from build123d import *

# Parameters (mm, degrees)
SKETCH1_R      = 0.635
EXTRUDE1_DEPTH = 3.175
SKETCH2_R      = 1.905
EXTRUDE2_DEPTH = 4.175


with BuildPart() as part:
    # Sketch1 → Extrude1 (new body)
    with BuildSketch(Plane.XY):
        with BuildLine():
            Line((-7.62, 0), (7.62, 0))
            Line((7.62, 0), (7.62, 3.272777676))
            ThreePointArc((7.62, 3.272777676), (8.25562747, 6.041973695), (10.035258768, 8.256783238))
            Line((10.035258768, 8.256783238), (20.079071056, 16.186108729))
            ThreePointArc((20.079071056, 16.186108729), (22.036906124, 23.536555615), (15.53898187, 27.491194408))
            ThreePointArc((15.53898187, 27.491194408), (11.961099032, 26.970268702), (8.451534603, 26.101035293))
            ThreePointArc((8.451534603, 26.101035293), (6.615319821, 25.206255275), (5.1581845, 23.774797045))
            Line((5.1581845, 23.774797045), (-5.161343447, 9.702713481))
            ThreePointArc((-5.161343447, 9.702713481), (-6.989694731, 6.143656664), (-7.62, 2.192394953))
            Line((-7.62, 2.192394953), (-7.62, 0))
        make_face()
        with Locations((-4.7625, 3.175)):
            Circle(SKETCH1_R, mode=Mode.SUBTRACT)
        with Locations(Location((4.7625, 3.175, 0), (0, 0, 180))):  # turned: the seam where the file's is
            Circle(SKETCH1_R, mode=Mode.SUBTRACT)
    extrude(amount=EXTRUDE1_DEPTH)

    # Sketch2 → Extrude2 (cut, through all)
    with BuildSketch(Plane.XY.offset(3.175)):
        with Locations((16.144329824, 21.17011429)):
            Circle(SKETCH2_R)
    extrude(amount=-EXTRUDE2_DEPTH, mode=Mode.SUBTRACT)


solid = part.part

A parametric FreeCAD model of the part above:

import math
import FreeCAD as App
import Part
import Sketcher
Q = App.Units.Quantity

doc = App.newDocument("Part")
body = doc.addObject("PartDesign::Body", "Body")

# Sketch on XY plane
sketch1 = doc.addObject("Sketcher::SketchObject", "Sketch")
body.addObject(sketch1)
sketch1.AttachmentSupport = (doc.XY_Plane, [""])
sketch1.MapMode = "FlatFace"
sketch1.addGeometry([
    Part.LineSegment(App.Vector(-7.6, 0, 0), App.Vector(7.6, 0, 0)),  # 0
    Part.LineSegment(App.Vector(7.6, 0, 0), App.Vector(7.6, 3.3, 0)),  # 1
    Part.ArcOfCircle(Part.Circle(App.Vector(14, 3.3, 0), App.Vector(0, 0, 1), 6.3), math.radians(128), math.radians(180)),  # 2
    Part.LineSegment(App.Vector(10, 8.3, 0), App.Vector(20.1, 16.2, 0)),  # 3
    Part.ArcOfCircle(Part.Circle(App.Vector(16.1, 21.2, 0), App.Vector(0, 0, 1), 6.3), math.radians(-52), math.radians(95)),  # 4
    Part.ArcOfCircle(Part.Circle(App.Vector(19.1, -9.2, 0), App.Vector(0, 0, 1), 36.8), math.radians(95.47), math.radians(106.72)),  # 5
    Part.ArcOfCircle(Part.Circle(App.Vector(10.3, 20, 0), App.Vector(0, 0, 1), 6.3), math.radians(107), math.radians(144)),  # 6
    Part.LineSegment(App.Vector(5.2, 23.8, 0), App.Vector(-5.2, 9.7, 0)),  # 7
    Part.ArcOfCircle(Part.Circle(App.Vector(5.1, 2.2, 0), App.Vector(0, 0, 1), 12.7), math.radians(144), math.radians(180)),  # 8
    Part.LineSegment(App.Vector(-7.6, 2.2, 0), App.Vector(-7.6, 0, 0)),  # 9
    Part.Circle(App.Vector(-4.8, 3.2, 0), App.Vector(0, 0, 1), 0.6),  # 10
    Part.Circle(App.Vector(4.8, 3.2, 0), App.Vector(0, 0, 1), 0.6),  # 11
], False)
sketch1.addConstraint([
    Sketcher.Constraint("Coincident", 0, 2, 1, 1),
    Sketcher.Constraint("Tangent", 1, 2, 2, 2),
    Sketcher.Constraint("Tangent", 2, 1, 3, 1),
    Sketcher.Constraint("Tangent", 3, 2, 4, 1),
    Sketcher.Constraint("Tangent", 4, 2, 5, 1),
    Sketcher.Constraint("Tangent", 5, 2, 6, 1),
    Sketcher.Constraint("Tangent", 6, 2, 7, 1),
    Sketcher.Constraint("Tangent", 7, 2, 8, 1),
    Sketcher.Constraint("Tangent", 8, 2, 9, 1),
    Sketcher.Constraint("Coincident", 9, 2, 0, 1),
    Sketcher.Constraint("Horizontal", 0),
    Sketcher.Constraint("Vertical", 1),
    Sketcher.Constraint("Vertical", 9),
    Sketcher.Constraint("Equal", 2, 4),
    Sketcher.Constraint("Equal", 4, 6),
    Sketcher.Constraint("Equal", 10, 11),
    Sketcher.Constraint("Symmetric", 0, 2, 9, 2, -1, 1),
    Sketcher.Constraint("Symmetric", 10, 3, 11, 3, -2),
    Sketcher.Constraint("Radius", 8, Q("0.5 in")),
    Sketcher.Constraint("Diameter", 10, Q("0.05 in")),
    Sketcher.Constraint("Radius", 2, Q("0.25 in")),
    Sketcher.Constraint("Radius", 5, Q("1.45 in")),
    Sketcher.Constraint("DistanceX", 0, 1, 0, 2, Q("0.6 in")),
    Sketcher.Constraint("DistanceX", 2, 3, 5, 3, Q("0.2 in")),
    Sketcher.Constraint("DistanceX", 10, 3, -1, 1, Q("0.1875 in")),
    Sketcher.Constraint("DistanceY", -1, 1, 10, 3, Q("0.125 in")),
    Sketcher.Constraint("DistanceY", -1, 1, 5, 2, Q("1.0275998 in")),
    Sketcher.Constraint("DistanceY", 1, 1, 1, 2, 3.272778),
    Sketcher.Constraint("DistanceY", 9, 2, 9, 1, 2.192395),
    Sketcher.Constraint("DistanceX", -1, 1, 4, 3, 16.14433),
    Sketcher.Constraint("DistanceY", 5, 3, -1, 1, 9.17107),
])
pad1 = doc.addObject("PartDesign::Pad", "Pad")
body.addObject(pad1)
pad1.Profile = sketch1
pad1.Length = Q("0.125 in")

# Sketch on XY plane
sketch2 = doc.addObject("Sketcher::SketchObject", "Sketch001")
body.addObject(sketch2)
sketch2.AttachmentSupport = (doc.XY_Plane, [""])
sketch2.MapMode = "FlatFace"
sketch2.AttachmentOffset = App.Placement(App.Vector(0, 0, 0.125 * 25.4), App.Rotation())
sketch2.addGeometry(Part.Circle(App.Vector(16.1, 21.2, 0), App.Vector(0, 0, 1), 1.9), False)
sketch2.addConstraint([
    Sketcher.Constraint("Diameter", 0, Q("0.15 in")),
    Sketcher.Constraint("DistanceX", -1, 1, 0, 3, 16.14433),
    Sketcher.Constraint("DistanceY", -1, 1, 0, 3, 21.170114),
])
pocket1 = doc.addObject("PartDesign::Pocket", "Pocket")
body.addObject(pocket1)
pocket1.Profile = sketch2
pocket1.Type = "ThroughAll"

doc.recompute()
